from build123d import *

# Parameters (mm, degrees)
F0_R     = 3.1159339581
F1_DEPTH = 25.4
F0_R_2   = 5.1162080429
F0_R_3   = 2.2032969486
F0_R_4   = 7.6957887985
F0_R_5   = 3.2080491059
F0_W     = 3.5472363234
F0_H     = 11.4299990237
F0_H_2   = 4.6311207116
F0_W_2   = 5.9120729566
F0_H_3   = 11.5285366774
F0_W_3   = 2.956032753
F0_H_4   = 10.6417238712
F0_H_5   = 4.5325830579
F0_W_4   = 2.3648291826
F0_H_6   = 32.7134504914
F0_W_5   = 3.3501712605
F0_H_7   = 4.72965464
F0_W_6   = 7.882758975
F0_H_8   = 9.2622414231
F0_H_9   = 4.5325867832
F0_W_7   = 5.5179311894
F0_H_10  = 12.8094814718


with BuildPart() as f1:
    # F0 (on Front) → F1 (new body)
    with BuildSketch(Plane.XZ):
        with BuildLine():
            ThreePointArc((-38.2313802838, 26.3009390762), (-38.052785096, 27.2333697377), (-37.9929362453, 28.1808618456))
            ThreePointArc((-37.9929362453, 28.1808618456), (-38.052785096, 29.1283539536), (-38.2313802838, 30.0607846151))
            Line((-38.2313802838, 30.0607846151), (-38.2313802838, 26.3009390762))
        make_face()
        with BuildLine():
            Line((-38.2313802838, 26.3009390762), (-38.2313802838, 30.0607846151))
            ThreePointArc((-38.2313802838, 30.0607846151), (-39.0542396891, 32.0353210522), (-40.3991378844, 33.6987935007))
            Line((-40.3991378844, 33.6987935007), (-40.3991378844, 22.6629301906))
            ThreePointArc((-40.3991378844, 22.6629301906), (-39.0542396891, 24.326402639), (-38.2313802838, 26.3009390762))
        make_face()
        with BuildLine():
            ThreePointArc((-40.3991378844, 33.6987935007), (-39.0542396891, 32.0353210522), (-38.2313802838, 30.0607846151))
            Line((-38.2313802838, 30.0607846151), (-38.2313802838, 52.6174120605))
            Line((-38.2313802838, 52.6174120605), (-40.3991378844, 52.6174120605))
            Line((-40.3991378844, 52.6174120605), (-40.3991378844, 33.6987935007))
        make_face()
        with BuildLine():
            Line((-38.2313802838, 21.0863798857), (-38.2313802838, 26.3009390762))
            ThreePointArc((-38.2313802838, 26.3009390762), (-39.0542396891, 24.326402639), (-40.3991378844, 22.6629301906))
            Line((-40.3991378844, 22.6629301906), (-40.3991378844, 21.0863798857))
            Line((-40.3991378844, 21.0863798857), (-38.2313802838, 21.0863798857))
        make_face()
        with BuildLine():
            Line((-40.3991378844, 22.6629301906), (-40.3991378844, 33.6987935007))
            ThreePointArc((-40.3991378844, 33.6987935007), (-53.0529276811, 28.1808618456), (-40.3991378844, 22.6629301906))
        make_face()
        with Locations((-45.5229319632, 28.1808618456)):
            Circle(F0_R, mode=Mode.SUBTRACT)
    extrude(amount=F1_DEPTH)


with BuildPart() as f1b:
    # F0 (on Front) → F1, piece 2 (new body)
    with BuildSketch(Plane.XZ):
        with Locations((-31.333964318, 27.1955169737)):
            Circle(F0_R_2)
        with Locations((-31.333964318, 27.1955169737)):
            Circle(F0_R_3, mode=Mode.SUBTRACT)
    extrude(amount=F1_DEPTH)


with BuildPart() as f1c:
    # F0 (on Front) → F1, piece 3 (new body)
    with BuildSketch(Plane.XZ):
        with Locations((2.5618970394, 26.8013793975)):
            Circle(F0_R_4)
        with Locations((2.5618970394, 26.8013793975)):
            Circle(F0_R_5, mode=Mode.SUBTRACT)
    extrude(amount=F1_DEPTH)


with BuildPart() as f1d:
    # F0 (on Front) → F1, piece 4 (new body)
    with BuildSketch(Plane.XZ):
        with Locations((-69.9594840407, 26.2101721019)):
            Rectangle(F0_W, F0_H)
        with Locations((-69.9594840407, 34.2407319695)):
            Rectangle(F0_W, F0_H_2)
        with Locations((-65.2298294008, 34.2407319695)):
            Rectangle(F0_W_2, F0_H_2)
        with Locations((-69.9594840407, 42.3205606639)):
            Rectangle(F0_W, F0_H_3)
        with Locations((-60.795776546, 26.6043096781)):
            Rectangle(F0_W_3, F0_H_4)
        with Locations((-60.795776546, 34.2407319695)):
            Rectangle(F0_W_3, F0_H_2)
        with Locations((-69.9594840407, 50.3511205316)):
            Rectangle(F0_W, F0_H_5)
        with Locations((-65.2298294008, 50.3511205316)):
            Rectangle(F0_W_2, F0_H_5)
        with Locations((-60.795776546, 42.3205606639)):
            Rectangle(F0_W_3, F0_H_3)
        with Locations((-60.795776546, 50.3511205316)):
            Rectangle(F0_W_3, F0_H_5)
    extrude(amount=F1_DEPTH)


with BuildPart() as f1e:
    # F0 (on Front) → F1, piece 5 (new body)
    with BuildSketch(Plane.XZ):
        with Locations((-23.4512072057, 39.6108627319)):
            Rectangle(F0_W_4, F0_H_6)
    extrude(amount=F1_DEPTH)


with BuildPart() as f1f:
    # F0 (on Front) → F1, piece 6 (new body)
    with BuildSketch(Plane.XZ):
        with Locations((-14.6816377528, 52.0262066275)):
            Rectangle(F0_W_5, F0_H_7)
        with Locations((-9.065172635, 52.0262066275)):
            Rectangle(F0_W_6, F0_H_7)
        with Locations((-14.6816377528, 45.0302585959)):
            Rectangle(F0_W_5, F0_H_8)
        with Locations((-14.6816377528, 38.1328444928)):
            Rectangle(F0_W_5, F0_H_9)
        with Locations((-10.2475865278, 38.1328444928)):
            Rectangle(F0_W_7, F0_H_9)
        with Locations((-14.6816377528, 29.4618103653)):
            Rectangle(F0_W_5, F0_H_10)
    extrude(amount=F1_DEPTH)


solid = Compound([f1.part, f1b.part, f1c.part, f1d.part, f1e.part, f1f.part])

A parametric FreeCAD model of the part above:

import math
import FreeCAD as App
import Part
import Sketcher
Q = App.Units.Quantity

doc = App.newDocument("Part")
body = doc.addObject("PartDesign::Body", "Body")

# Sketch on XZ plane
sketch1 = body.newObject("Sketcher::SketchObject", "Sketch")
sketch1.AttachmentSupport = (doc.getObject("XZ_Plane"), [""])
sketch1.MapMode = "FlatFace"
sketch1.addGeometry(Part.ArcOfCircle(Part.Circle(App.Vector(-45.5, 28.2, 0), App.Vector(0, 0, 1), 7.5), math.radians(-14.46), math.radians(0)), False)
sketch1.addGeometry(Part.ArcOfCircle(Part.Circle(App.Vector(-45.5, 28.2, 0), App.Vector(0, 0, 1), 7.5), math.radians(0), math.radians(14.46)), False)
sketch1.addGeometry(Part.LineSegment(App.Vector(-38.2, 30.1, 0), App.Vector(-38.2, 52.6, 0)), False)
sketch1.addGeometry(Part.LineSegment(App.Vector(-38.2, 52.6, 0), App.Vector(-40.4, 52.6, 0)), False)
sketch1.addGeometry(Part.LineSegment(App.Vector(-40.4, 52.6, 0), App.Vector(-40.4, 33.7, 0)), False)
sketch1.addGeometry(Part.ArcOfCircle(Part.Circle(App.Vector(-45.5, 28.2, 0), App.Vector(0, 0, 1), 7.5), math.radians(47), math.radians(313)), False)
sketch1.addGeometry(Part.LineSegment(App.Vector(-40.4, 22.7, 0), App.Vector(-40.4, 21.1, 0)), False)
sketch1.addGeometry(Part.LineSegment(App.Vector(-40.4, 21.1, 0), App.Vector(-38.2, 21.1, 0)), False)
sketch1.addGeometry(Part.LineSegment(App.Vector(-38.2, 21.1, 0), App.Vector(-38.2, 26.3, 0)), False)
sketch1.addGeometry(Part.Circle(App.Vector(-45.5, 28.2, 0), App.Vector(0, 0, 1), 3.1), False)
sketch1.addConstraint(Sketcher.Constraint("Tangent", 0, 2, 1, 1))
sketch1.addConstraint(Sketcher.Constraint("Coincident", 1, 2, 2, 1))
sketch1.addConstraint(Sketcher.Constraint("Coincident", 2, 2, 3, 1))
sketch1.addConstraint(Sketcher.Constraint("Coincident", 3, 2, 4, 1))
sketch1.addConstraint(Sketcher.Constraint("Coincident", 4, 2, 5, 1))
sketch1.addConstraint(Sketcher.Constraint("Coincident", 5, 2, 6, 1))
sketch1.addConstraint(Sketcher.Constraint("Coincident", 6, 2, 7, 1))
sketch1.addConstraint(Sketcher.Constraint("Coincident", 7, 2, 8, 1))
sketch1.addConstraint(Sketcher.Constraint("Coincident", 8, 2, 0, 1))
sketch1.addConstraint(Sketcher.Constraint("Vertical", 2))
sketch1.addConstraint(Sketcher.Constraint("Horizontal", 3))
sketch1.addConstraint(Sketcher.Constraint("Vertical", 4))
sketch1.addConstraint(Sketcher.Constraint("Vertical", 6))
sketch1.addConstraint(Sketcher.Constraint("Horizontal", 7))
sketch1.addConstraint(Sketcher.Constraint("Vertical", 8))
sketch1.addConstraint(Sketcher.Constraint("Coincident", 5, 3, 0, 3))
sketch1.addConstraint(Sketcher.Constraint("Coincident", 9, 3, 0, 3))
sketch1.addConstraint(Sketcher.Constraint("Equal", 0, 1))
sketch1.addConstraint(Sketcher.Constraint("Equal", 1, 5))
sketch1.addConstraint(Sketcher.Constraint("Horizontal", 9, 3, 0, 2))
sketch1.addConstraint(Sketcher.Constraint("Vertical", 4, 2, 5, 2))
sketch1.addConstraint(Sketcher.Constraint("Vertical", 2, 2, 7, 2))
sketch1.addConstraint(Sketcher.Constraint("Diameter", 9, Q("6.231868 mm")))
sketch1.addConstraint(Sketcher.Constraint("Radius", 0, Q("7.529996 mm")))
sketch1.addConstraint(Sketcher.Constraint("DistanceY", 4, 2, 4, 1, Q("18.918619 mm")))
sketch1.addConstraint(Sketcher.Constraint("DistanceY", 6, 2, 6, 1, Q("1.57655 mm")))
sketch1.addConstraint(Sketcher.Constraint("DistanceY", 8, 1, 8, 2, Q("5.214559 mm")))
sketch1.addConstraint(Sketcher.Constraint("DistanceX", 3, 2, 0, 2, Q("2.406202 mm")))
sketch1.addConstraint(Sketcher.Constraint("DistanceX", 0, 3, -1, 1, Q("45.522932 mm")))
sketch1.addConstraint(Sketcher.Constraint("DistanceY", -1, 1, 0, 3, Q("28.180862 mm")))
pad1 = body.newObject("PartDesign::Pad", "Pad")
pad1.Profile = sketch1
pad1.Length = Q("1 in")
body2 = doc.addObject("PartDesign::Body", "Body001")

# Sketch on XZ plane
sketch2 = body2.newObject("Sketcher::SketchObject", "Sketch001")
sketch2.AttachmentSupport = (doc.getObject("XZ_Plane001"), [""])
sketch2.MapMode = "FlatFace"
sketch2.addGeometry(Part.Circle(App.Vector(-31.3, 27.2, 0), App.Vector(0, 0, 1), 5.1), False)
sketch2.addGeometry(Part.Circle(App.Vector(-31.3, 27.2, 0), App.Vector(0, 0, 1), 2.2), False)
sketch2.addConstraint(Sketcher.Constraint("Coincident", 1, 3, 0, 3))
sketch2.addConstraint(Sketcher.Constraint("Diameter", 0, Q("10.232416 mm")))
sketch2.addConstraint(Sketcher.Constraint("Diameter", 1, Q("4.406594 mm")))
sketch2.addConstraint(Sketcher.Constraint("DistanceX", 0, 3, -1, 1, Q("31.333964 mm")))
sketch2.addConstraint(Sketcher.Constraint("DistanceY", -1, 1, 0, 3, Q("27.195517 mm")))
pad2 = body2.newObject("PartDesign::Pad", "Pad001")
pad2.Profile = sketch2
pad2.Length = Q("1 in")
body3 = doc.addObject("PartDesign::Body", "Body002")

# Sketch on XZ plane
sketch3 = body3.newObject("Sketcher::SketchObject", "Sketch002")
sketch3.AttachmentSupport = (doc.getObject("XZ_Plane002"), [""])
sketch3.MapMode = "FlatFace"
sketch3.addGeometry(Part.Circle(App.Vector(2.6, 26.8, 0), App.Vector(0, 0, 1), 7.7), False)
sketch3.addGeometry(Part.Circle(App.Vector(2.6, 26.8, 0), App.Vector(0, 0, 1), 3.2), False)
sketch3.addConstraint(Sketcher.Constraint("Coincident", 1, 3, 0, 3))
sketch3.addConstraint(Sketcher.Constraint("Diameter", 1, Q("6.416098 mm")))
sketch3.addConstraint(Sketcher.Constraint("Diameter", 0, Q("15.391578 mm")))
sketch3.addConstraint(Sketcher.Constraint("DistanceY", -1, 1, 0, 3, Q("26.801379 mm")))
sketch3.addConstraint(Sketcher.Constraint("DistanceX", -1, 1, 0, 3, Q("2.561897 mm")))
pad3 = body3.newObject("PartDesign::Pad", "Pad002")
pad3.Profile = sketch3
pad3.Length = Q("1 in")
body4 = doc.addObject("PartDesign::Body", "Body003")

# Sketch on XZ plane
sketch4 = body4.newObject("Sketcher::SketchObject", "Sketch003")
sketch4.AttachmentSupport = (doc.getObject("XZ_Plane003"), [""])
sketch4.MapMode = "FlatFace"
sketch4.addGeometry(Part.LineSegment(App.Vector(-59.3, 21.3, 0), App.Vector(-59.3, 52.6, 0)), False)
sketch4.addGeometry(Part.LineSegment(App.Vector(-59.3, 52.6, 0), App.Vector(-71.7, 52.6, 0)), False)
sketch4.addGeometry(Part.LineSegment(App.Vector(-71.7, 52.6, 0), App.Vector(-71.7, 20.5, 0)), False)
sketch4.addGeometry(Part.LineSegment(App.Vector(-71.7, 20.5, 0), App.Vector(-68.2, 20.5, 0)), False)
sketch4.addGeometry(Part.LineSegment(App.Vector(-68.2, 20.5, 0), App.Vector(-68.2, 31.9, 0)), False)
sketch4.addGeometry(Part.LineSegment(App.Vector(-68.2, 31.9, 0), App.Vector(-62.3, 31.9, 0)), False)
sketch4.addGeometry(Part.LineSegment(App.Vector(-62.3, 31.9, 0), App.Vector(-62.3, 21.3, 0)), False)
sketch4.addGeometry(Part.LineSegment(App.Vector(-62.3, 21.3, 0), App.Vector(-59.3, 21.3, 0)), False)
sketch4.addGeometry(Part.LineSegment(App.Vector(-62.3, 48.1, 0), App.Vector(-62.3, 36.6, 0)), False)
sketch4.addGeometry(Part.LineSegment(App.Vector(-62.3, 36.6, 0), App.Vector(-68.2, 36.6, 0)), False)
sketch4.addGeometry(Part.LineSegment(App.Vector(-68.2, 36.6, 0), App.Vector(-68.2, 48.1, 0)), False)
sketch4.addGeometry(Part.LineSegment(App.Vector(-68.2, 48.1, 0), App.Vector(-62.3, 48.1, 0)), False)
sketch4.addConstraint(Sketcher.Constraint("Coincident", 0, 2, 1, 1))
sketch4.addConstraint(Sketcher.Constraint("Coincident", 1, 2, 2, 1))
sketch4.addConstraint(Sketcher.Constraint("Coincident", 2, 2, 3, 1))
sketch4.addConstraint(Sketcher.Constraint("Coincident", 3, 2, 4, 1))
sketch4.addConstraint(Sketcher.Constraint("Coincident", 4, 2, 5, 1))
sketch4.addConstraint(Sketcher.Constraint("Coincident", 5, 2, 6, 1))
sketch4.addConstraint(Sketcher.Constraint("Coincident", 6, 2, 7, 1))
sketch4.addConstraint(Sketcher.Constraint("Coincident", 7, 2, 0, 1))
sketch4.addConstraint(Sketcher.Constraint("Coincident", 8, 2, 9, 1))
sketch4.addConstraint(Sketcher.Constraint("Coincident", 9, 2, 10, 1))
sketch4.addConstraint(Sketcher.Constraint("Coincident", 10, 2, 11, 1))
sketch4.addConstraint(Sketcher.Constraint("Coincident", 11, 2, 8, 1))
sketch4.addConstraint(Sketcher.Constraint("Vertical", 0))
sketch4.addConstraint(Sketcher.Constraint("Horizontal", 1))
sketch4.addConstraint(Sketcher.Constraint("Vertical", 2))
sketch4.addConstraint(Sketcher.Constraint("Horizontal", 3))
sketch4.addConstraint(Sketcher.Constraint("Vertical", 4))
sketch4.addConstraint(Sketcher.Constraint("Horizontal", 5))
sketch4.addConstraint(Sketcher.Constraint("Vertical", 6))
sketch4.addConstraint(Sketcher.Constraint("Horizontal", 7))
sketch4.addConstraint(Sketcher.Constraint("Vertical", 8))
sketch4.addConstraint(Sketcher.Constraint("Horizontal", 9))
sketch4.addConstraint(Sketcher.Constraint("Vertical", 10))
sketch4.addConstraint(Sketcher.Constraint("Horizontal", 11))
sketch4.addConstraint(Sketcher.Constraint("Vertical", 6, 2, 8, 2))
sketch4.addConstraint(Sketcher.Constraint("Vertical", 4, 2, 9, 2))
sketch4.addConstraint(Sketcher.Constraint("DistanceY", 4, 1, 4, 2, Q("0.45 in")))
sketch4.addConstraint(Sketcher.Constraint("DistanceY", 2, 2, 2, 1, Q("32.122239 mm")))
sketch4.addConstraint(Sketcher.Constraint("DistanceX", 1, 2, 1, 1, Q("12.415342 mm")))
sketch4.addConstraint(Sketcher.Constraint("DistanceX", 3, 1, 3, 2, Q("3.547236 mm")))
sketch4.addConstraint(Sketcher.Constraint("DistanceX", 5, 1, 5, 2, Q("5.912073 mm")))
sketch4.addConstraint(Sketcher.Constraint("DistanceY", 0, 1, 0, 2, Q("31.333964 mm")))
sketch4.addConstraint(Sketcher.Constraint("DistanceY", 8, 2, 8, 1, Q("11.528537 mm")))
sketch4.addConstraint(Sketcher.Constraint("DistanceX", 0, 2, -1, 1, Q("59.31776 mm")))
sketch4.addConstraint(Sketcher.Constraint("DistanceY", -1, 1, 4, 2, Q("31.925172 mm")))
sketch4.addConstraint(Sketcher.Constraint("DistanceY", -1, 1, 10, 2, Q("48.084829 mm")))
pad4 = body4.newObject("PartDesign::Pad", "Pad003")
pad4.Profile = sketch4
pad4.Length = Q("1 in")
body5 = doc.addObject("PartDesign::Body", "Body004")

# Sketch on XZ plane
sketch5 = body5.newObject("Sketcher::SketchObject", "Sketch004")
sketch5.AttachmentSupport = (doc.getObject("XZ_Plane004"), [""])
sketch5.MapMode = "FlatFace"
sketch5.addGeometry(Part.LineSegment(App.Vector(-24.6, 56, 0), App.Vector(-24.6, 23.3, 0)), False)
sketch5.addGeometry(Part.LineSegment(App.Vector(-24.6, 23.3, 0), App.Vector(-22.3, 23.3, 0)), False)
sketch5.addGeometry(Part.LineSegment(App.Vector(-22.3, 23.3, 0), App.Vector(-22.3, 56, 0)), False)
sketch5.addGeometry(Part.LineSegment(App.Vector(-22.3, 56, 0), App.Vector(-24.6, 56, 0)), False)
sketch5.addConstraint(Sketcher.Constraint("Coincident", 0, 2, 1, 1))
sketch5.addConstraint(Sketcher.Constraint("Coincident", 1, 2, 2, 1))
sketch5.addConstraint(Sketcher.Constraint("Coincident", 2, 2, 3, 1))
sketch5.addConstraint(Sketcher.Constraint("Coincident", 3, 2, 0, 1))
sketch5.addConstraint(Sketcher.Constraint("Vertical", 0))
sketch5.addConstraint(Sketcher.Constraint("Horizontal", 1))
sketch5.addConstraint(Sketcher.Constraint("Vertical", 2))
sketch5.addConstraint(Sketcher.Constraint("Horizontal", 3))
sketch5.addConstraint(Sketcher.Constraint("DistanceX", 1, 1, 1, 2, Q("2.364829 mm")))
sketch5.addConstraint(Sketcher.Constraint("DistanceY", 0, 2, 0, 1, Q("32.71345 mm")))
sketch5.addConstraint(Sketcher.Constraint("DistanceX", 0, 2, -1, 1, Q("24.633622 mm")))
sketch5.addConstraint(Sketcher.Constraint("DistanceY", -1, 1, 0, 2, Q("23.254137 mm")))
pad5 = body5.newObject("PartDesign::Pad", "Pad004")
pad5.Profile = sketch5
pad5.Length = Q("1 in")
body6 = doc.addObject("PartDesign::Body", "Body005")

# Sketch on XZ plane
sketch6 = body6.newObject("Sketcher::SketchObject", "Sketch005")
sketch6.AttachmentSupport = (doc.getObject("XZ_Plane005"), [""])
sketch6.MapMode = "FlatFace"
sketch6.addGeometry(Part.LineSegment(App.Vector(-16.4, 54.4, 0), App.Vector(-16.4, 23.1, 0)), False)
sketch6.addGeometry(Part.LineSegment(App.Vector(-16.4, 23.1, 0), App.Vector(-13, 23.1, 0)), False)
sketch6.addGeometry(Part.LineSegment(App.Vector(-13, 23.1, 0), App.Vector(-13, 35.9, 0)), False)
sketch6.addGeometry(Part.LineSegment(App.Vector(-13, 35.9, 0), App.Vector(-7.5, 35.9, 0)), False)
sketch6.addGeometry(Part.LineSegment(App.Vector(-7.5, 35.9, 0), App.Vector(-7.5, 40.4, 0)), False)
sketch6.addGeometry(Part.LineSegment(App.Vector(-7.5, 40.4, 0), App.Vector(-13, 40.4, 0)), False)
sketch6.addGeometry(Part.LineSegment(App.Vector(-13, 40.4, 0), App.Vector(-13, 49.7, 0)), False)
sketch6.addGeometry(Part.LineSegment(App.Vector(-13, 49.7, 0), App.Vector(-5.1, 49.7, 0)), False)
sketch6.addGeometry(Part.LineSegment(App.Vector(-5.1, 49.7, 0), App.Vector(-5.1, 54.4, 0)), False)
sketch6.addGeometry(Part.LineSegment(App.Vector(-5.1, 54.4, 0), App.Vector(-16.4, 54.4, 0)), False)
sketch6.addConstraint(Sketcher.Constraint("Coincident", 0, 2, 1, 1))
sketch6.addConstraint(Sketcher.Constraint("Coincident", 1, 2, 2, 1))
sketch6.addConstraint(Sketcher.Constraint("Coincident", 2, 2, 3, 1))
sketch6.addConstraint(Sketcher.Constraint("Coincident", 3, 2, 4, 1))
sketch6.addConstraint(Sketcher.Constraint("Coincident", 4, 2, 5, 1))
sketch6.addConstraint(Sketcher.Constraint("Coincident", 5, 2, 6, 1))
sketch6.addConstraint(Sketcher.Constraint("Coincident", 6, 2, 7, 1))
sketch6.addConstraint(Sketcher.Constraint("Coincident", 7, 2, 8, 1))
sketch6.addConstraint(Sketcher.Constraint("Coincident", 8, 2, 9, 1))
sketch6.addConstraint(Sketcher.Constraint("Coincident", 9, 2, 0, 1))
sketch6.addConstraint(Sketcher.Constraint("Vertical", 0))
sketch6.addConstraint(Sketcher.Constraint("Horizontal", 1))
sketch6.addConstraint(Sketcher.Constraint("Vertical", 2))
sketch6.addConstraint(Sketcher.Constraint("Horizontal", 3))
sketch6.addConstraint(Sketcher.Constraint("Vertical", 4))
sketch6.addConstraint(Sketcher.Constraint("Horizontal", 5))
sketch6.addConstraint(Sketcher.Constraint("Vertical", 6))
sketch6.addConstraint(Sketcher.Constraint("Horizontal", 7))
sketch6.addConstraint(Sketcher.Constraint("Vertical", 8))
sketch6.addConstraint(Sketcher.Constraint("Horizontal", 9))
sketch6.addConstraint(Sketcher.Constraint("Vertical", 2, 2, 5, 2))
sketch6.addConstraint(Sketcher.Constraint("DistanceX", 1, 1, 1, 2, Q("3.350171 mm")))
sketch6.addConstraint(Sketcher.Constraint("DistanceX", 3, 1, 3, 2, Q("5.517931 mm")))
sketch6.addConstraint(Sketcher.Constraint("DistanceX", 7, 1, 7, 2, Q("7.882759 mm")))
sketch6.addConstraint(Sketcher.Constraint("DistanceY", 2, 1, 2, 2, Q("12.809481 mm")))
sketch6.addConstraint(Sketcher.Constraint("DistanceY", 6, 1, 6, 2, Q("9.262241 mm")))
sketch6.addConstraint(Sketcher.Constraint("DistanceY", 0, 2, 0, 1, Q("31.333964 mm")))
sketch6.addConstraint(Sketcher.Constraint("DistanceY", 4, 1, 4, 2, Q("4.532587 mm")))
sketch6.addConstraint(Sketcher.Constraint("DistanceY", -1, 1, 0, 2, Q("23.05707 mm")))
sketch6.addConstraint(Sketcher.Constraint("DistanceX", 3, 2, -1, 1, Q("7.488621 mm")))
pad6 = body6.newObject("PartDesign::Pad", "Pad005")
pad6.Profile = sketch6
pad6.Length = Q("1 in")

doc.recompute()
